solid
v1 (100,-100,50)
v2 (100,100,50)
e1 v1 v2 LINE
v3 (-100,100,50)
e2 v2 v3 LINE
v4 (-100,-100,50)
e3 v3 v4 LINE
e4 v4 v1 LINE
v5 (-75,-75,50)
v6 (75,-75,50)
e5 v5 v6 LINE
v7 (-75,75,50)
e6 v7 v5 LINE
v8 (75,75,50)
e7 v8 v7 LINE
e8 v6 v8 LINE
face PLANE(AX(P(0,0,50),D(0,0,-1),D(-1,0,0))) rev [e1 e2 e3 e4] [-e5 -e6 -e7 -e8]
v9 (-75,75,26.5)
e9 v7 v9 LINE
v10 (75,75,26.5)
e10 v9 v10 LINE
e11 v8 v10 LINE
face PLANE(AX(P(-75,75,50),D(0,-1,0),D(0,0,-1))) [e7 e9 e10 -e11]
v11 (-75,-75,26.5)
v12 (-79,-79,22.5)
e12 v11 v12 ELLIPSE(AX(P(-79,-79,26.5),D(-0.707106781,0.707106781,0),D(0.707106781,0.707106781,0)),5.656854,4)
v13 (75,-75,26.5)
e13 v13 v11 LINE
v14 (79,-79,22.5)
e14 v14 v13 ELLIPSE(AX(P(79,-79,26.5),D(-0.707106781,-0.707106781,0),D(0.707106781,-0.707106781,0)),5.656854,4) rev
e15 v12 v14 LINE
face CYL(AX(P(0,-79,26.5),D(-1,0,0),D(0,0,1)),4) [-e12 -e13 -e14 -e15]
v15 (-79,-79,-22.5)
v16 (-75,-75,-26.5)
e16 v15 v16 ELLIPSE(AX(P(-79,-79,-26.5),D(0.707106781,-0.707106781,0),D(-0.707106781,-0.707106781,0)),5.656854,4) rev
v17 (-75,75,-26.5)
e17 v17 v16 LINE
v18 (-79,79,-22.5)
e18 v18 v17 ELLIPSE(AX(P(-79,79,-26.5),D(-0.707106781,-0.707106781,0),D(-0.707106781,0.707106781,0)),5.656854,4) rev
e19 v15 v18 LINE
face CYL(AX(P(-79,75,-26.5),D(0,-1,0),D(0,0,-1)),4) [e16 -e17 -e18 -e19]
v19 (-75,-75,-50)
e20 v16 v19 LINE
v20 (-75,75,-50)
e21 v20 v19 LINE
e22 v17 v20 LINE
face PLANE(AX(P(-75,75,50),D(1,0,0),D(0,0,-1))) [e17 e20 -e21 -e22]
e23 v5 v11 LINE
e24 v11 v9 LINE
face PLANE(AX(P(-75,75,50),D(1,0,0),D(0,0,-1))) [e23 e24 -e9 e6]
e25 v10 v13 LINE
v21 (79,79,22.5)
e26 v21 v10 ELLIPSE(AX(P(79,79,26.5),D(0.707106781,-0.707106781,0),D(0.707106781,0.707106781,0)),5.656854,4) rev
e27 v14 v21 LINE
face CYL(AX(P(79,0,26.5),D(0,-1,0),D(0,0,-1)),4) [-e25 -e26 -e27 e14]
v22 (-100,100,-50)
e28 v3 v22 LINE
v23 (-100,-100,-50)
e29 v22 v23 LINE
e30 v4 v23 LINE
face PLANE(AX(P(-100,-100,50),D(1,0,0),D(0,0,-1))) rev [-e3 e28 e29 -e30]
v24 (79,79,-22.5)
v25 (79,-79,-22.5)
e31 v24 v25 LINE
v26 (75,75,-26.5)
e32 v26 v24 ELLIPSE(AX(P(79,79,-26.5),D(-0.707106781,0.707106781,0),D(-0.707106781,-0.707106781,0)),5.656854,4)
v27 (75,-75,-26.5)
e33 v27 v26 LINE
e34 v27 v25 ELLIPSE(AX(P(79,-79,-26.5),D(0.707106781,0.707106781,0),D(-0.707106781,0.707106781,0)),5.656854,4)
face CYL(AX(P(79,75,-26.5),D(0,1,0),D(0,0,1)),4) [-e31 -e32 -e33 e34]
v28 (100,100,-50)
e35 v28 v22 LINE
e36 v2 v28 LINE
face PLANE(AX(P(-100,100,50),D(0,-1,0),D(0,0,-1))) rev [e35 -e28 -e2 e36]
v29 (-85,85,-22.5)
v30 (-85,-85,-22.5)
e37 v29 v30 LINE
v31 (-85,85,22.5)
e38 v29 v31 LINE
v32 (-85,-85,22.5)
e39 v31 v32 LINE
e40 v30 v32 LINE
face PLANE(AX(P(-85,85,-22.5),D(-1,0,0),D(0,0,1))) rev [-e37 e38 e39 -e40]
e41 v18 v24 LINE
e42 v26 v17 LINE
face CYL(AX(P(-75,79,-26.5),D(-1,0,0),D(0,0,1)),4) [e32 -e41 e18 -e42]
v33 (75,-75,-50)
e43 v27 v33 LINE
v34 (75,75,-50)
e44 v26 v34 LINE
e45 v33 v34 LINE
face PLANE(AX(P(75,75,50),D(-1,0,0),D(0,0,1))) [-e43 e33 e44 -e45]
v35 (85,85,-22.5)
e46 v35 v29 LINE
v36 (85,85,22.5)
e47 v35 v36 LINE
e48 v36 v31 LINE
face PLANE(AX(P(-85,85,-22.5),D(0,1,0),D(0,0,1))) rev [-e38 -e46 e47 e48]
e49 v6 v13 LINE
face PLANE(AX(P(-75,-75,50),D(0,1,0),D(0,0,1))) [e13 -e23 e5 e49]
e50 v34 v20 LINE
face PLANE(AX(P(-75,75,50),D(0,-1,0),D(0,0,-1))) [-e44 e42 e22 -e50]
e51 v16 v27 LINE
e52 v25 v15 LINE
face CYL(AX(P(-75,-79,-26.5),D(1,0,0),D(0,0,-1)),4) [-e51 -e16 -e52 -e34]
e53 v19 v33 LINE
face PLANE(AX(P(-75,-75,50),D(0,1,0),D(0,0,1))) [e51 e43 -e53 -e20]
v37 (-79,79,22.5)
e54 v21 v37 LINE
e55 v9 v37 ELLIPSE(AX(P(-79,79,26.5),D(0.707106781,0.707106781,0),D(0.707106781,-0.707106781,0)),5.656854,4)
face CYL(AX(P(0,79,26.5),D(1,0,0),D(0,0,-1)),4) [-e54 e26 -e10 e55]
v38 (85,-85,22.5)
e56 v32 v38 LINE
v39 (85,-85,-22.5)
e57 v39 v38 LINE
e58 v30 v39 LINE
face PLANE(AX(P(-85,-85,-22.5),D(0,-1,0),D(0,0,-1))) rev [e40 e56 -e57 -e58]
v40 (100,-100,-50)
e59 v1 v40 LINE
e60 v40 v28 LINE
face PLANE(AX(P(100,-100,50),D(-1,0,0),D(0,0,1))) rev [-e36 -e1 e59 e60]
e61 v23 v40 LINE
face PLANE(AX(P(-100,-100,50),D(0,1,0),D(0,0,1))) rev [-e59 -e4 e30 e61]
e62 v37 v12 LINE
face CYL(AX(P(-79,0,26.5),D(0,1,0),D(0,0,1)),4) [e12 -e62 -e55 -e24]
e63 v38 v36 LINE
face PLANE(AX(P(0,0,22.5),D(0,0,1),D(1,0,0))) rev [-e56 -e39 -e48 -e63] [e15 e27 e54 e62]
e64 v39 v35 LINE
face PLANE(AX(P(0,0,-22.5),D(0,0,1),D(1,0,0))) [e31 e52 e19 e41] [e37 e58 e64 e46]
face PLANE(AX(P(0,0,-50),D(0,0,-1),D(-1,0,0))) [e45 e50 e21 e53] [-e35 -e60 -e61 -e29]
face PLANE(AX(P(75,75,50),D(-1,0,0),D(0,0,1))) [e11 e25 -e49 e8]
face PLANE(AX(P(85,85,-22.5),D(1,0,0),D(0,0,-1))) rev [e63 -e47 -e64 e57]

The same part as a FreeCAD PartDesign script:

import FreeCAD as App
import Part
import Sketcher


def edges_at(feature, points):
    """Names of the edges that pass closest to the given points."""
    edges = feature.Shape.Edges
    near = lambda p: min(range(len(edges)), key=lambda i: edges[i].distToShape(Part.Vertex(*p))[0])
    return sorted({f"Edge{near(p) + 1}" for p in points})

doc = App.newDocument("Part")
body = doc.addObject("PartDesign::Body", "Body")

# Sketch on XY plane
sketch1 = body.newObject("Sketcher::SketchObject", "Sketch")
sketch1.AttachmentSupport = (doc.getObject("XY_Plane"), [""])
sketch1.MapMode = "FlatFace"
sketch1.addGeometry([
    Part.LineSegment(App.Vector(-100, 100, 0), App.Vector(-100, -100, 0)),  # 0
    Part.LineSegment(App.Vector(-100, -100, 0), App.Vector(100, -100, 0)),  # 1
    Part.LineSegment(App.Vector(100, -100, 0), App.Vector(100, 100, 0)),  # 2
    Part.LineSegment(App.Vector(100, 100, 0), App.Vector(-100, 100, 0)),  # 3
    Part.LineSegment(App.Vector(75, -75, 0), App.Vector(-75, -75, 0)),  # 4
    Part.LineSegment(App.Vector(-75, -75, 0), App.Vector(-75, 75, 0)),  # 5
    Part.LineSegment(App.Vector(-75, 75, 0), App.Vector(75, 75, 0)),  # 6
    Part.LineSegment(App.Vector(75, 75, 0), App.Vector(75, -75, 0)),  # 7
], False)
sketch1.addConstraint([
    Sketcher.Constraint("Coincident", 0, 2, 1, 1),
    Sketcher.Constraint("Coincident", 1, 2, 2, 1),
    Sketcher.Constraint("Coincident", 2, 2, 3, 1),
    Sketcher.Constraint("Coincident", 3, 2, 0, 1),
    Sketcher.Constraint("Coincident", 4, 2, 5, 1),
    Sketcher.Constraint("Coincident", 5, 2, 6, 1),
    Sketcher.Constraint("Coincident", 6, 2, 7, 1),
    Sketcher.Constraint("Coincident", 7, 2, 4, 1),
    Sketcher.Constraint("Vertical", 0),
    Sketcher.Constraint("Horizontal", 1),
    Sketcher.Constraint("Vertical", 2),
    Sketcher.Constraint("Horizontal", 3),
    Sketcher.Constraint("Horizontal", 4),
    Sketcher.Constraint("Vertical", 5),
    Sketcher.Constraint("Horizontal", 6),
    Sketcher.Constraint("Vertical", 7),
    Sketcher.Constraint("Symmetric", 0, 2, 2, 2, -1, 1),
    Sketcher.Constraint("Symmetric", 4, 2, 6, 2, -1, 1),
    Sketcher.Constraint("Equal", 3, 0),
    Sketcher.Constraint("Equal", 6, 5),
    Sketcher.Constraint("DistanceX", 1, 1, 1, 2, 200.0),
    Sketcher.Constraint("DistanceX", 4, 2, 4, 1, 150.0),
])
pad1 = body.newObject("PartDesign::Pad", "Pad")
pad1.Profile = sketch1
pad1.Length = 100
pad1.Midplane = True

# Sketch on XY plane
sketch2 = body.newObject("Sketcher::SketchObject", "Sketch001")
sketch2.AttachmentSupport = (doc.getObject("XY_Plane"), [""])
sketch2.MapMode = "FlatFace"
sketch2.addGeometry([
    Part.LineSegment(App.Vector(-85, 85, 0), App.Vector(-85, -85, 0)),
    Part.LineSegment(App.Vector(-85, -85, 0), App.Vector(85, -85, 0)),
    Part.LineSegment(App.Vector(85, -85, 0), App.Vector(85, 85, 0)),
    Part.LineSegment(App.Vector(85, 85, 0), App.Vector(-85, 85, 0)),
], False)
sketch2.addConstraint([
    Sketcher.Constraint("Coincident", 0, 2, 1, 1),
    Sketcher.Constraint("Coincident", 1, 2, 2, 1),
    Sketcher.Constraint("Coincident", 2, 2, 3, 1),
    Sketcher.Constraint("Coincident", 3, 2, 0, 1),
    Sketcher.Constraint("Vertical", 0),
    Sketcher.Constraint("Horizontal", 1),
    Sketcher.Constraint("Vertical", 2),
    Sketcher.Constraint("Horizontal", 3),
    Sketcher.Constraint("Symmetric", 0, 2, 2, 2, -1, 1),
    Sketcher.Constraint("Equal", 3, 0),
    Sketcher.Constraint("DistanceX", 1, 1, 1, 2, 170.0),
])
pocket1 = body.newObject("PartDesign::Pocket", "Pocket")
pocket1.Profile = sketch2
pocket1.Length = 45
pocket1.Midplane = True
doc.recompute()

fillet = body.newObject("PartDesign::Fillet", "Fillet")
fillet.Base = (pocket1, edges_at(pocket1, [
    (0, -75, -22.5),
    (75, 0, -22.5),
    (0, 75, -22.5),
    (-75, 0, -22.5),
]))
fillet.Radius = 4
doc.recompute()

fillet2 = body.newObject("PartDesign::Fillet", "Fillet001")
fillet2.Base = (fillet, edges_at(fillet, [
    (0, -75, 22.5),
    (75, 0, 22.5),
    (0, 75, 22.5),
    (-75, 0, 22.5),
]))
fillet2.Radius = 4

doc.recompute()
